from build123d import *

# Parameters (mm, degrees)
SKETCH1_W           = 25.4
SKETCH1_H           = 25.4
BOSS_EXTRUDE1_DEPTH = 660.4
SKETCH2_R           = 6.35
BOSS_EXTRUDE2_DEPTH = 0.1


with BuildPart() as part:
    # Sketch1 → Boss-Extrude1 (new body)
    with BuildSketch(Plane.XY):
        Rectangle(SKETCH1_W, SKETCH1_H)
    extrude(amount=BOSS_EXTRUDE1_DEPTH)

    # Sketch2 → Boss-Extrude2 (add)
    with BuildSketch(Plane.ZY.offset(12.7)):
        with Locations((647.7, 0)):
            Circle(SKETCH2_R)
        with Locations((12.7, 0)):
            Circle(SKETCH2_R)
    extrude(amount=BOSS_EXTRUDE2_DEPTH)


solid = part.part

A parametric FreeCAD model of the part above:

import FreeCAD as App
import Part
import Sketcher
Q = App.Units.Quantity

doc = App.newDocument("Part")
body = doc.addObject("PartDesign::Body", "Body")

# Sketch on XY plane
sketch1 = body.newObject("Sketcher::SketchObject", "Sketch")
sketch1.AttachmentSupport = (doc.getObject("XY_Plane"), [""])
sketch1.MapMode = "FlatFace"
sketch1.addGeometry([
    Part.LineSegment(App.Vector(-13, 13, 0), App.Vector(-13, -13, 0)),
    Part.LineSegment(App.Vector(-13, -13, 0), App.Vector(13, -13, 0)),
    Part.LineSegment(App.Vector(13, -13, 0), App.Vector(13, 13, 0)),
    Part.LineSegment(App.Vector(13, 13, 0), App.Vector(-13, 13, 0)),
], False)
sketch1.addConstraint([
    Sketcher.Constraint("Coincident", 0, 2, 1, 1),
    Sketcher.Constraint("Coincident", 1, 2, 2, 1),
    Sketcher.Constraint("Coincident", 2, 2, 3, 1),
    Sketcher.Constraint("Coincident", 3, 2, 0, 1),
    Sketcher.Constraint("Vertical", 0),
    Sketcher.Constraint("Horizontal", 1),
    Sketcher.Constraint("Vertical", 2),
    Sketcher.Constraint("Horizontal", 3),
    Sketcher.Constraint("Symmetric", 0, 2, 2, 2, -1, 1),
    Sketcher.Constraint("Equal", 3, 0),
    Sketcher.Constraint("DistanceX", 1, 1, 1, 2, Q("1 in")),
])
pad1 = body.newObject("PartDesign::Pad", "Pad")
pad1.Profile = sketch1
pad1.Length = Q("26 in")

# Sketch on YZ plane
sketch2 = body.newObject("Sketcher::SketchObject", "Sketch001")
sketch2.AttachmentSupport = (doc.getObject("YZ_Plane"), [""])
sketch2.MapMode = "FlatFace"
sketch2.AttachmentOffset = App.Placement(App.Vector(0, 0, -0.5 * 25.4), App.Rotation())
sketch2.addGeometry([
    Part.Circle(App.Vector(0, 648, 0), App.Vector(0, 0, 1), 6),
    Part.Circle(App.Vector(0, 13, 0), App.Vector(0, 0, 1), 6),
], False)
sketch2.addConstraint([
    Sketcher.Constraint("Equal", 0, 1),
    Sketcher.Constraint("PointOnObject", 0, 3, -2),
    Sketcher.Constraint("PointOnObject", 1, 3, -2),
    Sketcher.Constraint("Diameter", 0, Q("0.5 in")),
    Sketcher.Constraint("DistanceY", 1, 3, 0, 3, Q("25 in")),
    Sketcher.Constraint("DistanceY", -1, 1, 0, 3, Q("25.5 in")),
])
pad2 = body.newObject("PartDesign::Pad", "Pad001")
pad2.Profile = sketch2
pad2.Length = 0.1
pad2.Reversed = True

doc.recompute()
